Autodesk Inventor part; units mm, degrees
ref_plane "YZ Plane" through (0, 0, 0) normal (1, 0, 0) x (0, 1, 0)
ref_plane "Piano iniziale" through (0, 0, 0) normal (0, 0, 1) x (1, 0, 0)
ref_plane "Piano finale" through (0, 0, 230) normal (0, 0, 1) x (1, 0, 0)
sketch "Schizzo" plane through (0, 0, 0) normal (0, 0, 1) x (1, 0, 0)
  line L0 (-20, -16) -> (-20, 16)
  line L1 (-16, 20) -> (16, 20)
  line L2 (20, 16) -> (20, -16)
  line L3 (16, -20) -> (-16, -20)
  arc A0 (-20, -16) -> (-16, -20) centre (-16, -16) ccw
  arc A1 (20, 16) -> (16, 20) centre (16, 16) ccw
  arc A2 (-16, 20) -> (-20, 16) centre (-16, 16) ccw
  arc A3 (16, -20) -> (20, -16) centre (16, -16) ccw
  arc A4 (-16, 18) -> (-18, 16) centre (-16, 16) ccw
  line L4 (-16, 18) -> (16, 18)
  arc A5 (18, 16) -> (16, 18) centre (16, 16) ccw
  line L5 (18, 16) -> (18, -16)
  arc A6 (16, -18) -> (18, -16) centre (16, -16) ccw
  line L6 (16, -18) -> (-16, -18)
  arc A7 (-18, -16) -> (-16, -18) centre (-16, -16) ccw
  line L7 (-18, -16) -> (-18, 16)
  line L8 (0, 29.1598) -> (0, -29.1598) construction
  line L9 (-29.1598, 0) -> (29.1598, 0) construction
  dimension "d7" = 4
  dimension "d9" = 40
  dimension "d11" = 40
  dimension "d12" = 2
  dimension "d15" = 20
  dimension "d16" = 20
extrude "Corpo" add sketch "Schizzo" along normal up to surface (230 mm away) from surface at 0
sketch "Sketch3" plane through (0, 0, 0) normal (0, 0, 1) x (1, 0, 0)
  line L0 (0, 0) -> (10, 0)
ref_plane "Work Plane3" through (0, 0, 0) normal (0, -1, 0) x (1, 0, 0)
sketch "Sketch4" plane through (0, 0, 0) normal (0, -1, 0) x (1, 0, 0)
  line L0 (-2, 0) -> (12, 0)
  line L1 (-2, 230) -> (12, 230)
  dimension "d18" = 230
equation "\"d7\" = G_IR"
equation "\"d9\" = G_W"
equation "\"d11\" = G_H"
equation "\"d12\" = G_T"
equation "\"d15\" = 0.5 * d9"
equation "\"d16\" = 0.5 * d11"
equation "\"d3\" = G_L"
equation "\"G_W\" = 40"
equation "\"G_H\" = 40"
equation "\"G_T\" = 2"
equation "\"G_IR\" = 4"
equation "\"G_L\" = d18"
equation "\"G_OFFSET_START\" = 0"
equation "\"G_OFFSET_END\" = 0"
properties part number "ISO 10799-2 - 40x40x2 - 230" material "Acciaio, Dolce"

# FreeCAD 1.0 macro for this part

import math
import FreeCAD as App
import Part
import Sketcher

V = App.Vector
Q = App.Units.Quantity

doc = App.newDocument("Part")
body = doc.addObject("PartDesign::Body", "Body")

sketch1 = body.newObject("Sketcher::SketchObject", "Sketch")
sketch1.AttachmentSupport = (doc.getObject("XY_Plane"), [""])
sketch1.MapMode = "FlatFace"
sketch1.addGeometry([
    Part.LineSegment(V(-20, 16, 0), V(-20, -16, 0)),
    Part.ArcOfCircle(Part.Circle(V(-16, -16, 0), V(0, 0, 1), 4), math.radians(180), math.radians(270)),
    Part.LineSegment(V(-16, -20, 0), V(16, -20, 0)),
    Part.ArcOfCircle(Part.Circle(V(16, -16, 0), V(0, 0, 1), 4), math.radians(-90), math.radians(0)),
    Part.LineSegment(V(20, -16, 0), V(20, 16, 0)),
    Part.ArcOfCircle(Part.Circle(V(16, 16, 0), V(0, 0, 1), 4), math.radians(0), math.radians(90)),
    Part.LineSegment(V(16, 20, 0), V(-16, 20, 0)),
    Part.ArcOfCircle(Part.Circle(V(-16, 16, 0), V(0, 0, 1), 4), math.radians(90), math.radians(180)),
    Part.ArcOfCircle(Part.Circle(V(-16, 16, 0), V(0, 0, 1), 2), math.radians(90), math.radians(180)),
    Part.LineSegment(V(-16, 18, 0), V(16, 18, 0)),
    Part.ArcOfCircle(Part.Circle(V(16, 16, 0), V(0, 0, 1), 2), math.radians(0), math.radians(90)),
    Part.LineSegment(V(18, 16, 0), V(18, -16, 0)),
    Part.ArcOfCircle(Part.Circle(V(16, -16, 0), V(0, 0, 1), 2), math.radians(-90), math.radians(0)),
    Part.LineSegment(V(16, -18, 0), V(-16, -18, 0)),
    Part.ArcOfCircle(Part.Circle(V(-16, -16, 0), V(0, 0, 1), 2), math.radians(180), math.radians(270)),
    Part.LineSegment(V(-18, -16, 0), V(-18, 16, 0)),
], False)
sketch1.addConstraint([
    Sketcher.Constraint("Tangent", 0, 2, 1, 1),
    Sketcher.Constraint("Tangent", 1, 2, 2, 1),
    Sketcher.Constraint("Tangent", 2, 2, 3, 1),
    Sketcher.Constraint("Tangent", 3, 2, 4, 1),
    Sketcher.Constraint("Tangent", 4, 2, 5, 1),
    Sketcher.Constraint("Tangent", 5, 2, 6, 1),
    Sketcher.Constraint("Tangent", 6, 2, 7, 1),
    Sketcher.Constraint("Tangent", 7, 2, 0, 1),
    Sketcher.Constraint("Tangent", 8, 1, 9, 1),
    Sketcher.Constraint("Tangent", 9, 2, 10, 2),
    Sketcher.Constraint("Tangent", 10, 1, 11, 1),
    Sketcher.Constraint("Tangent", 11, 2, 12, 2),
    Sketcher.Constraint("Tangent", 12, 1, 13, 1),
    Sketcher.Constraint("Tangent", 13, 2, 14, 2),
    Sketcher.Constraint("Tangent", 14, 1, 15, 1),
    Sketcher.Constraint("Tangent", 15, 2, 8, 2),
    Sketcher.Constraint("Vertical", 0),
    Sketcher.Constraint("Horizontal", 2),
    Sketcher.Constraint("Vertical", 4),
    Sketcher.Constraint("Horizontal", 6),
    Sketcher.Constraint("Horizontal", 9),
    Sketcher.Constraint("Vertical", 11),
    Sketcher.Constraint("Horizontal", 13),
    Sketcher.Constraint("Vertical", 15),
    Sketcher.Constraint("Coincident", 8, 3, 7, 3),
    Sketcher.Constraint("Coincident", 10, 3, 5, 3),
    Sketcher.Constraint("Coincident", 12, 3, 3, 3),
    Sketcher.Constraint("Equal", 1, 3),
    Sketcher.Constraint("Equal", 3, 5),
    Sketcher.Constraint("Equal", 5, 7),
    Sketcher.Constraint("Equal", 12, 14),
    Sketcher.Constraint("Symmetric", 1, 3, 5, 3, -1, 1),
    Sketcher.Constraint("Equal", 13, 0),
    Sketcher.Constraint("Radius", 1, Q("4 mm")),
    Sketcher.Constraint("Radius", 8, Q("2 mm")),
    Sketcher.Constraint("DistanceX", 0, 2, -1, 1, Q("20 mm")),
])
pad1 = body.newObject("PartDesign::Pad", "Pad")
pad1.Profile = sketch1
pad1.Length = 230

doc.recompute()
